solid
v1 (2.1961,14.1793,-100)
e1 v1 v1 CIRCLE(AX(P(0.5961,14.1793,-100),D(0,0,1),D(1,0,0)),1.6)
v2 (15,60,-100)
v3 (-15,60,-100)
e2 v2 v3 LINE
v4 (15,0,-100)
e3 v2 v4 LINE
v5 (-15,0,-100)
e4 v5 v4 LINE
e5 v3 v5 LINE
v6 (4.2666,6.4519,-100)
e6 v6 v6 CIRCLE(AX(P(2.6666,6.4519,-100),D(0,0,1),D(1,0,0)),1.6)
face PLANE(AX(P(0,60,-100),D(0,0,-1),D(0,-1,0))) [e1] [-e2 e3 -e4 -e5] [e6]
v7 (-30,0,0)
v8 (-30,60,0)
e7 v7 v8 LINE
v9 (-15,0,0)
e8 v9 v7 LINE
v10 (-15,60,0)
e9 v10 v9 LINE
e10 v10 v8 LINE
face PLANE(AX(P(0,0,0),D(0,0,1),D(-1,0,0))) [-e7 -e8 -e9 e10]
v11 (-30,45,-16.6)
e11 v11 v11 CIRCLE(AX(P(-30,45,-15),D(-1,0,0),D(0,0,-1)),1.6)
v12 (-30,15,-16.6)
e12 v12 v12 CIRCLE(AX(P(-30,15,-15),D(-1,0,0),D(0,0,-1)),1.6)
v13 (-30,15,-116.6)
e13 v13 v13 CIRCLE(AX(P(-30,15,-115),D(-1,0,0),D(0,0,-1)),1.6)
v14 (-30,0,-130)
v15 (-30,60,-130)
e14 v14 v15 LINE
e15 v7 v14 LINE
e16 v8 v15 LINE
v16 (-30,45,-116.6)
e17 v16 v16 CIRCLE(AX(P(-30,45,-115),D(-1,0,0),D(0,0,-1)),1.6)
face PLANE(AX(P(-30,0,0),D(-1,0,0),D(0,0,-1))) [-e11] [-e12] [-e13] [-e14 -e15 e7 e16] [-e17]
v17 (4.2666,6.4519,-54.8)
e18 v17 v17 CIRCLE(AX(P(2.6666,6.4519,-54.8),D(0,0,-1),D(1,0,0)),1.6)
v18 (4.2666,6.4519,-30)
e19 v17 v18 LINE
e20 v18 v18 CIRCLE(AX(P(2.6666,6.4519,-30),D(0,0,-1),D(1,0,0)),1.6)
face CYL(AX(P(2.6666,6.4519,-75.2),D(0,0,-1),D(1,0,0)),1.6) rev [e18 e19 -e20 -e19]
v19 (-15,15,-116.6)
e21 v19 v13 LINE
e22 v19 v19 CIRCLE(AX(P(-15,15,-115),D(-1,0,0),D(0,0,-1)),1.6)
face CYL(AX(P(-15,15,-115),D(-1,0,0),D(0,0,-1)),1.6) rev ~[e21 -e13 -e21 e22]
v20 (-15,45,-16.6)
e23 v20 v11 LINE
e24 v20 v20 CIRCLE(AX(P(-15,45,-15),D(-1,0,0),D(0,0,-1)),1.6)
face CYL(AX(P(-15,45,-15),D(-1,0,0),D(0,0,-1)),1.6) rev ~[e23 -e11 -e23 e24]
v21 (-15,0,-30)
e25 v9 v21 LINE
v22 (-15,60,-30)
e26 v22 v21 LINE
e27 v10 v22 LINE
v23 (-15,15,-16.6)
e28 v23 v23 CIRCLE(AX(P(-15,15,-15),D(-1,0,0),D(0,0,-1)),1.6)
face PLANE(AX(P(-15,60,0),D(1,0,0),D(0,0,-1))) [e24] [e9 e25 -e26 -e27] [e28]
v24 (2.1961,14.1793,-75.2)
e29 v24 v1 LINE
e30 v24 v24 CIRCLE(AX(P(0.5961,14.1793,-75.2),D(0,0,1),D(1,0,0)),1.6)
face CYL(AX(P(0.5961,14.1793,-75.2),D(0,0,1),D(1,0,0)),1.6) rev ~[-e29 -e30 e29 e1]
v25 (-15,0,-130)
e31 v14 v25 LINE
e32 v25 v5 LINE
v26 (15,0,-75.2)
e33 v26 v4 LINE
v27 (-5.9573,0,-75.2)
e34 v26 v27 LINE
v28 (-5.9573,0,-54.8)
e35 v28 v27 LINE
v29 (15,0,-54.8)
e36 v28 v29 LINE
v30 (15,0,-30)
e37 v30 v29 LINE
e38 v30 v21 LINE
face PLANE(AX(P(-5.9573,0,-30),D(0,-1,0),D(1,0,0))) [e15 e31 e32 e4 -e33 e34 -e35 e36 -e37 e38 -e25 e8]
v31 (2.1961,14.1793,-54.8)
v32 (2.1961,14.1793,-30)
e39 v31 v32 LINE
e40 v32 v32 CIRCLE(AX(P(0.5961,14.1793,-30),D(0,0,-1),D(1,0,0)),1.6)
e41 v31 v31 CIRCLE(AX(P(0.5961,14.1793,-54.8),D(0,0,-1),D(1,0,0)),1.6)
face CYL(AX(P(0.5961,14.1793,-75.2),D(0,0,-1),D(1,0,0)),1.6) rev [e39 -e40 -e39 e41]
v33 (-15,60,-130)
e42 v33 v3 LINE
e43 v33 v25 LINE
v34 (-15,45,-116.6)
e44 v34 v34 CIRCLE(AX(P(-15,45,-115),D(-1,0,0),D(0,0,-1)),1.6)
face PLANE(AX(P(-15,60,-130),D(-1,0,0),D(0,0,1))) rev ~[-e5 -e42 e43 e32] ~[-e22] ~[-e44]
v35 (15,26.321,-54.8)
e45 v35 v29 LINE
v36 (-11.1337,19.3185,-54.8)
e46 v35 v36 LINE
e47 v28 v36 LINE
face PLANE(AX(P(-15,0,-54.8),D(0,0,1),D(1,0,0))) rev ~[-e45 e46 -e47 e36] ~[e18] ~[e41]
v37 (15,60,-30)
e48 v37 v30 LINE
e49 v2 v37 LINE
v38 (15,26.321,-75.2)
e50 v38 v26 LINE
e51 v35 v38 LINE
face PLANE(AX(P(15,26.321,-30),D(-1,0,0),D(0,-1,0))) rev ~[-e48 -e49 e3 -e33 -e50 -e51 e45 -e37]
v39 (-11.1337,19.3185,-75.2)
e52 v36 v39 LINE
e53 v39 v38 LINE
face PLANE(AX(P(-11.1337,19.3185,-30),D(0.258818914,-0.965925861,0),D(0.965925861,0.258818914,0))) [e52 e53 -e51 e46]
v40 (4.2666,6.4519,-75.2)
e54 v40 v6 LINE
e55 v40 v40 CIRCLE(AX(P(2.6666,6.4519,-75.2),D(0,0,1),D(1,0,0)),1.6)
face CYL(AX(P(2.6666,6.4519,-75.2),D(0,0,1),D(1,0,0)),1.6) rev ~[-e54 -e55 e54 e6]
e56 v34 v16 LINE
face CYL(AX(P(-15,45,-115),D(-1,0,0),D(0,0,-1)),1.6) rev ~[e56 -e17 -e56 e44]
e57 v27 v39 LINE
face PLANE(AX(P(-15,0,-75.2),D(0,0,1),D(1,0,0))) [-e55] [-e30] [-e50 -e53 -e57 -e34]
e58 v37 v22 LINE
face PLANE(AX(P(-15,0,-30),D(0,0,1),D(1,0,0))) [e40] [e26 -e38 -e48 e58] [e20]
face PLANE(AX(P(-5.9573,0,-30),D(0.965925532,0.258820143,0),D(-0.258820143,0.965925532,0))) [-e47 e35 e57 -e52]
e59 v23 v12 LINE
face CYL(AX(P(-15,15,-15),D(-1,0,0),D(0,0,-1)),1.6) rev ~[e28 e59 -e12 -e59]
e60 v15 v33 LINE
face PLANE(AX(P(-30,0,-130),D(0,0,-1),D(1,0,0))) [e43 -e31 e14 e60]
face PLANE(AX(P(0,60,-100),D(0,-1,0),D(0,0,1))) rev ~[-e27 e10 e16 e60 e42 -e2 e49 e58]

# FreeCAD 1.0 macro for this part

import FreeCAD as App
import Part
import Sketcher
Q = App.Units.Quantity


def add_polygon(sketch, points):
    """Adds a closed chain of lines whose ends are joined by coincident constraints."""
    first, n = sketch.GeometryCount, len(points)
    for a, b in zip(points, points[1:] + points[:1]):
        sketch.addGeometry(Part.LineSegment(App.Vector(*a, 0), App.Vector(*b, 0)), False)
    for i in range(n):
        sketch.addConstraint(Sketcher.Constraint("Coincident", first + i, 2, first + (i + 1) % n, 1))

doc = App.newDocument("Part")
params = doc.addObject("Spreadsheet::Sheet", "Params")
for row, (alias, value) in enumerate([
    ("sketch1_width", "30 mm"),
    ("sketch1_height", "130 mm"),
    ("pad1_length", "60 mm"),
    ("sketch2_width", "15 mm"),
    ("sketch2_height", "30 mm"),
    ("pocket1_length", "60 mm"),
    ("sketch3_width", "60 mm"),
    ("sketch3_height", "70 mm"),
    ("pad2_length", "15 mm"),
    ("sketch4_length", "20 mm"),
    ("pocket2_length", "45.2 mm"),
    ("sketch5_length", "20 mm"),
    ("pad3_length", "24.8 mm"),
    ("sketch6_diameter", "3.2 mm"),
    ("pocket3_length", "100 mm"),
    ("sketch7_diameter", "3.2 mm"),
    ("hole_diameter", "3.2 mm"),
], start=1):
    params.set(f"A{row}", alias)
    params.set(f"B{row}", "=" + value)
    params.setAlias(f"B{row}", alias)

body = doc.addObject("PartDesign::Body", "Body")

sketch1 = body.newObject("Sketcher::SketchObject", "Sketch")
sketch1.AttachmentSupport = (doc.getObject("XZ_Plane"), [""])
sketch1.MapMode = "FlatFace"
add_polygon(sketch1, [(-30, 0), (0, 0), (0, -130), (-30, -130)])
sketch1.addConstraint(Sketcher.Constraint("Horizontal", 0))
sketch1.addConstraint(Sketcher.Constraint("Vertical", 1))
sketch1.addConstraint(Sketcher.Constraint("Horizontal", 2))
sketch1.addConstraint(Sketcher.Constraint("Vertical", 3))
sketch1.addConstraint(Sketcher.Constraint("Coincident", 0, 2, -1, 1))
sketch1.addConstraint(Sketcher.Constraint("DistanceX", 0, 1, 0, 2, Q("30 mm")))
sketch1.addConstraint(Sketcher.Constraint("DistanceY", 1, 2, 1, 1, Q("130 mm")))
sketch1.setExpression("Constraints[9]", "Params.sketch1_width")
sketch1.setExpression("Constraints[10]", "Params.sketch1_height")
pad1 = body.newObject("PartDesign::Pad", "Pad")
pad1.Profile = sketch1
pad1.setExpression("Length", "Params.pad1_length")
pad1.Reversed = True

sketch2 = body.newObject("Sketcher::SketchObject", "Sketch001")
sketch2.AttachmentSupport = (doc.getObject("XZ_Plane"), [""])
sketch2.MapMode = "FlatFace"
sketch2.AttachmentOffset = App.Placement(App.Vector(0, 0, -60), App.Rotation())
add_polygon(sketch2, [(-15, -30), (-15, 0), (0, 0), (0, -30)])
add_polygon(sketch2, [(0, -100), (0, -130), (-15, -130), (-15, -100)])
sketch2.addConstraint(Sketcher.Constraint("Vertical", 0))
sketch2.addConstraint(Sketcher.Constraint("Horizontal", 1))
sketch2.addConstraint(Sketcher.Constraint("Vertical", 2))
sketch2.addConstraint(Sketcher.Constraint("Horizontal", 3))
sketch2.addConstraint(Sketcher.Constraint("Vertical", 4))
sketch2.addConstraint(Sketcher.Constraint("Horizontal", 5))
sketch2.addConstraint(Sketcher.Constraint("Vertical", 6))
sketch2.addConstraint(Sketcher.Constraint("Horizontal", 7))
sketch2.addConstraint(Sketcher.Constraint("Coincident", 1, 2, -1, 1))
sketch2.addConstraint(Sketcher.Constraint("PointOnObject", 4, 2, -2))
sketch2.addConstraint(Sketcher.Constraint("Vertical", 3, 2, 5, 2))
sketch2.addConstraint(Sketcher.Constraint("Equal", 2, 4))
sketch2.addConstraint(Sketcher.Constraint("DistanceX", 1, 1, 1, 2, Q("15 mm")))
sketch2.addConstraint(Sketcher.Constraint("DistanceY", 0, 1, 0, 2, Q("30 mm")))
sketch2.addConstraint(Sketcher.Constraint("DistanceY", 4, 2, -1, 1, Q("130 mm")))
sketch2.setExpression("Constraints[20]", "Params.sketch2_width")
sketch2.setExpression("Constraints[21]", "Params.sketch2_height")
pocket1 = body.newObject("PartDesign::Pocket", "Pocket")
pocket1.Profile = sketch2
pocket1.setExpression("Length", "Params.pocket1_length")
pocket1.Reversed = True

sketch3 = body.newObject("Sketcher::SketchObject", "Sketch002")
sketch3.AttachmentSupport = (doc.getObject("YZ_Plane"), [""])
sketch3.MapMode = "FlatFace"
add_polygon(sketch3, [(60, -30), (0, -30), (0, -100), (60, -100)])
sketch3.addConstraint(Sketcher.Constraint("Horizontal", 0))
sketch3.addConstraint(Sketcher.Constraint("Vertical", 1))
sketch3.addConstraint(Sketcher.Constraint("Horizontal", 2))
sketch3.addConstraint(Sketcher.Constraint("Vertical", 3))
sketch3.addConstraint(Sketcher.Constraint("PointOnObject", 0, 2, -2))
sketch3.addConstraint(Sketcher.Constraint("DistanceX", 0, 2, 0, 1, Q("60 mm")))
sketch3.addConstraint(Sketcher.Constraint("DistanceY", 1, 2, 1, 1, Q("70 mm")))
sketch3.addConstraint(Sketcher.Constraint("DistanceY", 0, 2, -1, 1, Q("30 mm")))
sketch3.setExpression("Constraints[9]", "Params.sketch3_width")
sketch3.setExpression("Constraints[10]", "Params.sketch3_height")
pad2 = body.newObject("PartDesign::Pad", "Pad001")
pad2.Profile = sketch3
pad2.setExpression("Length", "Params.pad2_length")

sketch4 = body.newObject("Sketcher::SketchObject", "Sketch003")
sketch4.AttachmentSupport = (doc.getObject("XY_Plane"), [""])
sketch4.MapMode = "FlatFace"
sketch4.AttachmentOffset = App.Placement(App.Vector(0, 0, -30), App.Rotation())
add_polygon(sketch4, [(-6, 0), (15, 0), (15, 26), (-11, 19)])
sketch4.addConstraint(Sketcher.Constraint("Horizontal", 0))
sketch4.addConstraint(Sketcher.Constraint("Vertical", 1))
sketch4.addConstraint(Sketcher.Constraint("PointOnObject", 0, 2, -1))
sketch4.addConstraint(Sketcher.Constraint("Perpendicular", 2, 3))
sketch4.addConstraint(Sketcher.Constraint("Distance", 3, Q("20 mm")))
sketch4.addConstraint(Sketcher.Constraint("Angle", 2, Q("-165 deg")))
sketch4.addConstraint(Sketcher.Constraint("DistanceX", -1, 1, 0, 2, Q("15 mm")))
sketch4.addConstraint(Sketcher.Constraint("DistanceY", 1, 1, 1, 2, Q("26.321 mm")))
sketch4.setExpression("Constraints[8]", "Params.sketch4_length")
pocket2 = body.newObject("PartDesign::Pocket", "Pocket001")
pocket2.Profile = sketch4
pocket2.setExpression("Length", "Params.pocket2_length")

sketch5 = body.newObject("Sketcher::SketchObject", "Sketch004")
sketch5.AttachmentSupport = (doc.getObject("XY_Plane"), [""])
sketch5.MapMode = "FlatFace"
sketch5.AttachmentOffset = App.Placement(App.Vector(0, 0, -30), App.Rotation())
add_polygon(sketch5, [(-11, 19), (-6, 0), (15, 0), (15, 26)])
sketch5.addConstraint(Sketcher.Constraint("Horizontal", 1))
sketch5.addConstraint(Sketcher.Constraint("Vertical", 2))
sketch5.addConstraint(Sketcher.Constraint("PointOnObject", 0, 2, -1))
sketch5.addConstraint(Sketcher.Constraint("Perpendicular", 0, 3))
sketch5.addConstraint(Sketcher.Constraint("Angle", 0, Q("-75 deg")))
sketch5.addConstraint(Sketcher.Constraint("Distance", 0, Q("20 mm")))
sketch5.addConstraint(Sketcher.Constraint("DistanceX", -1, 1, 1, 2, Q("15 mm")))
sketch5.addConstraint(Sketcher.Constraint("DistanceY", 2, 1, 2, 2, Q("26.321 mm")))
sketch5.setExpression("Constraints[9]", "Params.sketch5_length")
pad3 = body.newObject("PartDesign::Pad", "Pad002")
pad3.Profile = sketch5
pad3.setExpression("Length", "Params.pad3_length")
pad3.Reversed = True

sketch6 = body.newObject("Sketcher::SketchObject", "Sketch005")
sketch6.AttachmentSupport = (doc.getObject("XY_Plane"), [""])
sketch6.MapMode = "FlatFace"
sketch6.AttachmentOffset = App.Placement(App.Vector(0, 0, -75.2), App.Rotation())
sketch6.addGeometry(Part.Circle(App.Vector(0.6, 14.2, 0), App.Vector(0, 0, 1), 1.6), False)
sketch6.addGeometry(Part.Circle(App.Vector(2.7, 6.5, 0), App.Vector(0, 0, 1), 1.6), False)
sketch6.addConstraint(Sketcher.Constraint("Equal", 0, 1))
sketch6.addConstraint(Sketcher.Constraint("Diameter", 0, Q("3.2 mm")))
sketch6.addConstraint(Sketcher.Constraint("DistanceX", -1, 1, 0, 3, Q("0.596 mm")))
sketch6.addConstraint(Sketcher.Constraint("DistanceY", -1, 1, 1, 3, Q("6.452 mm")))
sketch6.addConstraint(Sketcher.Constraint("DistanceY", -1, 1, 0, 3, Q("14.1793 mm")))
sketch6.addConstraint(Sketcher.Constraint("DistanceX", -1, 1, 1, 3, Q("2.6666 mm")))
sketch6.setExpression("Constraints[1]", "Params.sketch6_diameter")
pocket3 = body.newObject("PartDesign::Pocket", "Pocket002")
pocket3.Profile = sketch6
pocket3.setExpression("Length", "Params.pocket3_length")
pocket3.Midplane = True

sketch7 = body.newObject("Sketcher::SketchObject", "Sketch006")
sketch7.AttachmentSupport = (doc.getObject("YZ_Plane"), [""])
sketch7.MapMode = "FlatFace"
sketch7.AttachmentOffset = App.Placement(App.Vector(0, 0, -15), App.Rotation())
sketch7.addGeometry(Part.Circle(App.Vector(45, -15, 0), App.Vector(0, 0, 1), 1.6), False)
sketch7.addGeometry(Part.Circle(App.Vector(15, -15, 0), App.Vector(0, 0, 1), 1.6), False)
sketch7.addGeometry(Part.Circle(App.Vector(45, -115, 0), App.Vector(0, 0, 1), 1.6), False)
sketch7.addGeometry(Part.Circle(App.Vector(15, -115, 0), App.Vector(0, 0, 1), 1.6), False)
sketch7.addConstraint(Sketcher.Constraint("Equal", 0, 1))
sketch7.addConstraint(Sketcher.Constraint("Equal", 1, 2))
sketch7.addConstraint(Sketcher.Constraint("Equal", 2, 3))
sketch7.addConstraint(Sketcher.Constraint("Horizontal", 0, 3, 1, 3))
sketch7.addConstraint(Sketcher.Constraint("Horizontal", 2, 3, 3, 3))
sketch7.addConstraint(Sketcher.Constraint("Vertical", 0, 3, 2, 3))
sketch7.addConstraint(Sketcher.Constraint("Vertical", 1, 3, 3, 3))
sketch7.addConstraint(Sketcher.Constraint("Diameter", 0, Q("3.2 mm")))
sketch7.addConstraint(Sketcher.Constraint("DistanceX", -1, 1, 0, 3, Q("45 mm")))
sketch7.addConstraint(Sketcher.Constraint("DistanceY", 0, 3, -1, 1, Q("15 mm")))
sketch7.addConstraint(Sketcher.Constraint("DistanceX", -1, 1, 1, 3, Q("15 mm")))
sketch7.addConstraint(Sketcher.Constraint("DistanceY", 2, 3, -1, 1, Q("115 mm")))
sketch7.setExpression("Constraints[7]", "Params.sketch7_diameter")
doc.recompute()
hole = body.newObject("PartDesign::Hole", "Hole")
hole.Profile = sketch7
hole.ThreadType = "None"
hole.setExpression("Diameter", "Params.hole_diameter")
hole.DepthType = "ThroughAll"

doc.recompute()
